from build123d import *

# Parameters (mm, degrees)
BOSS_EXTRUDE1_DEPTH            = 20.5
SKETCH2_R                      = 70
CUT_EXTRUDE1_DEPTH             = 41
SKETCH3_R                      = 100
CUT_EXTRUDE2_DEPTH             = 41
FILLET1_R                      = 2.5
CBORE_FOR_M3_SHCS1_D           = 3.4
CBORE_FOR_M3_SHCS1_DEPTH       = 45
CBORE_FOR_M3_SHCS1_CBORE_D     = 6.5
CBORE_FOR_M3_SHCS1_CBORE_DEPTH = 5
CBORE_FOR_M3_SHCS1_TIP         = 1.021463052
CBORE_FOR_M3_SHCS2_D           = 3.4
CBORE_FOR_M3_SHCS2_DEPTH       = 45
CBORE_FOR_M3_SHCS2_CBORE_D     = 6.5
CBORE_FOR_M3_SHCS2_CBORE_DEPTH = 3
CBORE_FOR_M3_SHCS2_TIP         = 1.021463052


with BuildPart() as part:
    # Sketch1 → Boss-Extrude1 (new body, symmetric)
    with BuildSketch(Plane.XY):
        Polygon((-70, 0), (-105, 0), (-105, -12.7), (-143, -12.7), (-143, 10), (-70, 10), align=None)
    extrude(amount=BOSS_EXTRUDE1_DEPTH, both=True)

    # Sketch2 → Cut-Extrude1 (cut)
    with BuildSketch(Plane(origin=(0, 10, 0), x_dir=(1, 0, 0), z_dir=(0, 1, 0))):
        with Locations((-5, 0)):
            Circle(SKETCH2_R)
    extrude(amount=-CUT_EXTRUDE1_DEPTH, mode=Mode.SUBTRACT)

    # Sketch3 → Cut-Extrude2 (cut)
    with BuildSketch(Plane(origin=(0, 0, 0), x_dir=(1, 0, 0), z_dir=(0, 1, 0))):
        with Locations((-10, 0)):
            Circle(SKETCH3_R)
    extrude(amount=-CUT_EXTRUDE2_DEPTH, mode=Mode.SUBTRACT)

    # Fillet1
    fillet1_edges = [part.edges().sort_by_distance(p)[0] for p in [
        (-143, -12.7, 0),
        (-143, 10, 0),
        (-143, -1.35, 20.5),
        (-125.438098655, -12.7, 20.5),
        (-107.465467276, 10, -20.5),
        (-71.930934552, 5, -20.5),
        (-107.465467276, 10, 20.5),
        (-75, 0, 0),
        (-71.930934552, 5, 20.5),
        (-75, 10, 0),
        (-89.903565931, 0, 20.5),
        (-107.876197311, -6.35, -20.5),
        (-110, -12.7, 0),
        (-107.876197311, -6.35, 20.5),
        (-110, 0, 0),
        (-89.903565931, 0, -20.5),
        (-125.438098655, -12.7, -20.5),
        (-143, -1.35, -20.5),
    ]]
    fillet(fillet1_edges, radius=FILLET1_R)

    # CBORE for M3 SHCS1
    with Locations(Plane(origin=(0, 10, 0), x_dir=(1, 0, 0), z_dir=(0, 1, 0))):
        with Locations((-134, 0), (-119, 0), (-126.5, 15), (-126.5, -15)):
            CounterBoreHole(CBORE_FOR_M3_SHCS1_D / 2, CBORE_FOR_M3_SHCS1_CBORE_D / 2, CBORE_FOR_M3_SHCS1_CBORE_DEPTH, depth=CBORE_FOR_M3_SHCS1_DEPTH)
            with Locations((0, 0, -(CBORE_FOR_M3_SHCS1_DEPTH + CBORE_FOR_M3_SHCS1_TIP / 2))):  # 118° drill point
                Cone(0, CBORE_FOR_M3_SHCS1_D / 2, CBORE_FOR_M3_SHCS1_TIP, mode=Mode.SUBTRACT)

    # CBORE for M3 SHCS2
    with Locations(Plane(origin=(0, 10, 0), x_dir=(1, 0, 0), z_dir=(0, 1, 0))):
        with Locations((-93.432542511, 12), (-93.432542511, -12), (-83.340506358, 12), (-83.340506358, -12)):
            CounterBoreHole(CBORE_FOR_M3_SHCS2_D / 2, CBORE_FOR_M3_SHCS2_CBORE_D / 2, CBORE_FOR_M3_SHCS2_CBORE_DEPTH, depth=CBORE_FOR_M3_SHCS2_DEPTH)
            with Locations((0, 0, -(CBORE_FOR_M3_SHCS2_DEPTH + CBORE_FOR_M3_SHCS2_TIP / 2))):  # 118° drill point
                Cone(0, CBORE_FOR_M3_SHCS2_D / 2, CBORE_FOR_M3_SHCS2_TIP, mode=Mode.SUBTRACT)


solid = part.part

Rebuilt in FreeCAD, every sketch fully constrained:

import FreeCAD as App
import Part
import Sketcher
from FreeCAD import Vector
Q = App.Units.Quantity

doc = App.newDocument("Part")
body = doc.addObject("PartDesign::Body", "Body")

sketch1 = body.newObject("Sketcher::SketchObject", "Sketch")
sketch1.AttachmentSupport = (doc.getObject("XY_Plane"), [""])
sketch1.MapMode = "FlatFace"
sketch1.addGeometry([
    Part.LineSegment(Vector(-105, 0, 0), Vector(-70, 0, 0)),
    Part.LineSegment(Vector(-70, 0, 0), Vector(-70, 10, 0)),
    Part.LineSegment(Vector(-70, 10, 0), Vector(-143, 10, 0)),
    Part.LineSegment(Vector(-143, 10, 0), Vector(-143, -12.7, 0)),
    Part.LineSegment(Vector(-143, -12.7, 0), Vector(-105, -12.7, 0)),
    Part.LineSegment(Vector(-105, -12.7, 0), Vector(-105, 0, 0)),
], False)
sketch1.addConstraint([
    Sketcher.Constraint("Coincident", 0, 2, 1, 1),
    Sketcher.Constraint("Coincident", 1, 2, 2, 1),
    Sketcher.Constraint("Coincident", 2, 2, 3, 1),
    Sketcher.Constraint("Coincident", 3, 2, 4, 1),
    Sketcher.Constraint("Coincident", 4, 2, 5, 1),
    Sketcher.Constraint("Coincident", 5, 2, 0, 1),
    Sketcher.Constraint("Horizontal", 0),
    Sketcher.Constraint("Vertical", 1),
    Sketcher.Constraint("Horizontal", 2),
    Sketcher.Constraint("Vertical", 3),
    Sketcher.Constraint("Horizontal", 4),
    Sketcher.Constraint("Vertical", 5),
    Sketcher.Constraint("PointOnObject", 0, 2, -1),
    Sketcher.Constraint("DistanceX", 0, 1, 0, 2, Q("35 mm")),
    Sketcher.Constraint("DistanceX", 2, 2, 2, 1, Q("73 mm")),
    Sketcher.Constraint("DistanceY", 1, 1, 1, 2, Q("10 mm")),
    Sketcher.Constraint("DistanceY", 3, 2, 3, 1, Q("22.7 mm")),
    Sketcher.Constraint("DistanceX", 0, 2, -1, 1, Q("70 mm")),
])
pad1 = body.newObject("PartDesign::Pad", "Pad")
pad1.Profile = sketch1
pad1.Length = 41
pad1.Midplane = True

sketch2 = body.newObject("Sketcher::SketchObject", "Sketch001")
sketch2.AttachmentSupport = (doc.getObject("XZ_Plane"), [""])
sketch2.MapMode = "FlatFace"
sketch2.AttachmentOffset = App.Placement(Vector(0, 0, -10), App.Rotation())
sketch2.addGeometry(Part.Circle(Vector(-5, 0, 0), Vector(0, 0, 1), 70), False)
sketch2.addConstraint([
    Sketcher.Constraint("PointOnObject", 0, 3, -1),
    Sketcher.Constraint("Diameter", 0, Q("140 mm")),
    Sketcher.Constraint("DistanceX", 0, 3, -1, 1, Q("5 mm")),
])
pocket1 = body.newObject("PartDesign::Pocket", "Pocket")
pocket1.Profile = sketch2
pocket1.Length = 41
pocket1.Reversed = True

sketch3 = body.newObject("Sketcher::SketchObject", "Sketch002")
sketch3.AttachmentSupport = (doc.getObject("XZ_Plane"), [""])
sketch3.MapMode = "FlatFace"
sketch3.addGeometry(Part.Circle(Vector(-10, 0, 0), Vector(0, 0, 1), 100), False)
sketch3.addConstraint([
    Sketcher.Constraint("PointOnObject", 0, 3, -1),
    Sketcher.Constraint("Diameter", 0, Q("200 mm")),
    Sketcher.Constraint("DistanceX", 0, 3, -1, 1, Q("10 mm")),
])
pocket2 = body.newObject("PartDesign::Pocket", "Pocket001")
pocket2.Profile = sketch3
pocket2.Length = 41
pocket2.Reversed = True
doc.recompute()

fillet = body.newObject("PartDesign::Fillet", "Fillet")
fillet.Base = (pocket2, ["Edge1"])
fillet.UseAllEdges = True
fillet.Radius = 2.5

sketch4 = body.newObject("Sketcher::SketchObject", "Sketch003")
sketch4.AttachmentSupport = (doc.getObject("XZ_Plane"), [""])
sketch4.MapMode = "FlatFace"
sketch4.AttachmentOffset = App.Placement(Vector(0, 0, -10), App.Rotation())
sketch4.addGeometry([
    Part.Circle(Vector(-134, 0, 0), Vector(0, 0, 1), 1.7),
    Part.Circle(Vector(-119, 0, 0), Vector(0, 0, 1), 1.7),
    Part.Circle(Vector(-126.5, -15, 0), Vector(0, 0, 1), 1.7),
    Part.Circle(Vector(-126.5, 15, 0), Vector(0, 0, 1), 1.7),
], False)
sketch4.addConstraint([
    Sketcher.Constraint("Equal", 0, 1),
    Sketcher.Constraint("Equal", 1, 2),
    Sketcher.Constraint("Equal", 2, 3),
    Sketcher.Constraint("Symmetric", 2, 3, 3, 3, -1),
    Sketcher.Constraint("PointOnObject", 0, 3, -1),
    Sketcher.Constraint("PointOnObject", 1, 3, -1),
    Sketcher.Constraint("Diameter", 0, Q("3.4 mm")),
    Sketcher.Constraint("DistanceX", 0, 3, -1, 1, Q("134 mm")),
    Sketcher.Constraint("DistanceX", 1, 3, -1, 1, Q("119 mm")),
    Sketcher.Constraint("DistanceY", 2, 3, -1, 1, Q("15 mm")),
    Sketcher.Constraint("DistanceX", 2, 3, -1, 1, Q("126.5 mm")),
])
doc.recompute()
hole = body.newObject("PartDesign::Hole", "Hole")
hole.Profile = sketch4
hole.ThreadType = "None"
hole.Diameter = 3.4
hole.DepthType = "Dimension"
hole.Depth = 45
hole.DrillPoint = "Angled"
hole.DrillPointAngle = 118
hole.HoleCutType = "Counterbore"
hole.HoleCutDiameter = 6.5
hole.HoleCutDepth = 5
hole.Reversed = True

sketch5 = body.newObject("Sketcher::SketchObject", "Sketch004")
sketch5.AttachmentSupport = (doc.getObject("XZ_Plane"), [""])
sketch5.MapMode = "FlatFace"
sketch5.AttachmentOffset = App.Placement(Vector(0, 0, -10), App.Rotation())
sketch5.addGeometry([
    Part.Circle(Vector(-93.432543, -12, 0), Vector(0, 0, 1), 1.7),
    Part.Circle(Vector(-93.432543, 12, 0), Vector(0, 0, 1), 1.7),
    Part.Circle(Vector(-83.340506, -12, 0), Vector(0, 0, 1), 1.7),
    Part.Circle(Vector(-83.340506, 12, 0), Vector(0, 0, 1), 1.7),
], False)
sketch5.addConstraint([
    Sketcher.Constraint("Equal", 0, 1),
    Sketcher.Constraint("Equal", 1, 2),
    Sketcher.Constraint("Equal", 2, 3),
    Sketcher.Constraint("Symmetric", 0, 3, 1, 3, -1),
    Sketcher.Constraint("Symmetric", 2, 3, 3, 3, -1),
    Sketcher.Constraint("Horizontal", 0, 3, 2, 3),
    Sketcher.Constraint("Diameter", 0, Q("3.4 mm")),
    Sketcher.Constraint("DistanceY", 0, 3, -1, 1, Q("12 mm")),
    Sketcher.Constraint("DistanceX", 0, 3, -1, 1, Q("93.432543 mm")),
    Sketcher.Constraint("DistanceX", 2, 3, -1, 1, Q("83.340506 mm")),
])
doc.recompute()
hole2 = body.newObject("PartDesign::Hole", "Hole001")
hole2.Profile = sketch5
hole2.ThreadType = "None"
hole2.Diameter = 3.4
hole2.DepthType = "Dimension"
hole2.Depth = 45
hole2.DrillPoint = "Angled"
hole2.DrillPointAngle = 118
hole2.HoleCutType = "Counterbore"
hole2.HoleCutDiameter = 6.5
hole2.HoleCutDepth = 3
hole2.Reversed = True

doc.recompute()
